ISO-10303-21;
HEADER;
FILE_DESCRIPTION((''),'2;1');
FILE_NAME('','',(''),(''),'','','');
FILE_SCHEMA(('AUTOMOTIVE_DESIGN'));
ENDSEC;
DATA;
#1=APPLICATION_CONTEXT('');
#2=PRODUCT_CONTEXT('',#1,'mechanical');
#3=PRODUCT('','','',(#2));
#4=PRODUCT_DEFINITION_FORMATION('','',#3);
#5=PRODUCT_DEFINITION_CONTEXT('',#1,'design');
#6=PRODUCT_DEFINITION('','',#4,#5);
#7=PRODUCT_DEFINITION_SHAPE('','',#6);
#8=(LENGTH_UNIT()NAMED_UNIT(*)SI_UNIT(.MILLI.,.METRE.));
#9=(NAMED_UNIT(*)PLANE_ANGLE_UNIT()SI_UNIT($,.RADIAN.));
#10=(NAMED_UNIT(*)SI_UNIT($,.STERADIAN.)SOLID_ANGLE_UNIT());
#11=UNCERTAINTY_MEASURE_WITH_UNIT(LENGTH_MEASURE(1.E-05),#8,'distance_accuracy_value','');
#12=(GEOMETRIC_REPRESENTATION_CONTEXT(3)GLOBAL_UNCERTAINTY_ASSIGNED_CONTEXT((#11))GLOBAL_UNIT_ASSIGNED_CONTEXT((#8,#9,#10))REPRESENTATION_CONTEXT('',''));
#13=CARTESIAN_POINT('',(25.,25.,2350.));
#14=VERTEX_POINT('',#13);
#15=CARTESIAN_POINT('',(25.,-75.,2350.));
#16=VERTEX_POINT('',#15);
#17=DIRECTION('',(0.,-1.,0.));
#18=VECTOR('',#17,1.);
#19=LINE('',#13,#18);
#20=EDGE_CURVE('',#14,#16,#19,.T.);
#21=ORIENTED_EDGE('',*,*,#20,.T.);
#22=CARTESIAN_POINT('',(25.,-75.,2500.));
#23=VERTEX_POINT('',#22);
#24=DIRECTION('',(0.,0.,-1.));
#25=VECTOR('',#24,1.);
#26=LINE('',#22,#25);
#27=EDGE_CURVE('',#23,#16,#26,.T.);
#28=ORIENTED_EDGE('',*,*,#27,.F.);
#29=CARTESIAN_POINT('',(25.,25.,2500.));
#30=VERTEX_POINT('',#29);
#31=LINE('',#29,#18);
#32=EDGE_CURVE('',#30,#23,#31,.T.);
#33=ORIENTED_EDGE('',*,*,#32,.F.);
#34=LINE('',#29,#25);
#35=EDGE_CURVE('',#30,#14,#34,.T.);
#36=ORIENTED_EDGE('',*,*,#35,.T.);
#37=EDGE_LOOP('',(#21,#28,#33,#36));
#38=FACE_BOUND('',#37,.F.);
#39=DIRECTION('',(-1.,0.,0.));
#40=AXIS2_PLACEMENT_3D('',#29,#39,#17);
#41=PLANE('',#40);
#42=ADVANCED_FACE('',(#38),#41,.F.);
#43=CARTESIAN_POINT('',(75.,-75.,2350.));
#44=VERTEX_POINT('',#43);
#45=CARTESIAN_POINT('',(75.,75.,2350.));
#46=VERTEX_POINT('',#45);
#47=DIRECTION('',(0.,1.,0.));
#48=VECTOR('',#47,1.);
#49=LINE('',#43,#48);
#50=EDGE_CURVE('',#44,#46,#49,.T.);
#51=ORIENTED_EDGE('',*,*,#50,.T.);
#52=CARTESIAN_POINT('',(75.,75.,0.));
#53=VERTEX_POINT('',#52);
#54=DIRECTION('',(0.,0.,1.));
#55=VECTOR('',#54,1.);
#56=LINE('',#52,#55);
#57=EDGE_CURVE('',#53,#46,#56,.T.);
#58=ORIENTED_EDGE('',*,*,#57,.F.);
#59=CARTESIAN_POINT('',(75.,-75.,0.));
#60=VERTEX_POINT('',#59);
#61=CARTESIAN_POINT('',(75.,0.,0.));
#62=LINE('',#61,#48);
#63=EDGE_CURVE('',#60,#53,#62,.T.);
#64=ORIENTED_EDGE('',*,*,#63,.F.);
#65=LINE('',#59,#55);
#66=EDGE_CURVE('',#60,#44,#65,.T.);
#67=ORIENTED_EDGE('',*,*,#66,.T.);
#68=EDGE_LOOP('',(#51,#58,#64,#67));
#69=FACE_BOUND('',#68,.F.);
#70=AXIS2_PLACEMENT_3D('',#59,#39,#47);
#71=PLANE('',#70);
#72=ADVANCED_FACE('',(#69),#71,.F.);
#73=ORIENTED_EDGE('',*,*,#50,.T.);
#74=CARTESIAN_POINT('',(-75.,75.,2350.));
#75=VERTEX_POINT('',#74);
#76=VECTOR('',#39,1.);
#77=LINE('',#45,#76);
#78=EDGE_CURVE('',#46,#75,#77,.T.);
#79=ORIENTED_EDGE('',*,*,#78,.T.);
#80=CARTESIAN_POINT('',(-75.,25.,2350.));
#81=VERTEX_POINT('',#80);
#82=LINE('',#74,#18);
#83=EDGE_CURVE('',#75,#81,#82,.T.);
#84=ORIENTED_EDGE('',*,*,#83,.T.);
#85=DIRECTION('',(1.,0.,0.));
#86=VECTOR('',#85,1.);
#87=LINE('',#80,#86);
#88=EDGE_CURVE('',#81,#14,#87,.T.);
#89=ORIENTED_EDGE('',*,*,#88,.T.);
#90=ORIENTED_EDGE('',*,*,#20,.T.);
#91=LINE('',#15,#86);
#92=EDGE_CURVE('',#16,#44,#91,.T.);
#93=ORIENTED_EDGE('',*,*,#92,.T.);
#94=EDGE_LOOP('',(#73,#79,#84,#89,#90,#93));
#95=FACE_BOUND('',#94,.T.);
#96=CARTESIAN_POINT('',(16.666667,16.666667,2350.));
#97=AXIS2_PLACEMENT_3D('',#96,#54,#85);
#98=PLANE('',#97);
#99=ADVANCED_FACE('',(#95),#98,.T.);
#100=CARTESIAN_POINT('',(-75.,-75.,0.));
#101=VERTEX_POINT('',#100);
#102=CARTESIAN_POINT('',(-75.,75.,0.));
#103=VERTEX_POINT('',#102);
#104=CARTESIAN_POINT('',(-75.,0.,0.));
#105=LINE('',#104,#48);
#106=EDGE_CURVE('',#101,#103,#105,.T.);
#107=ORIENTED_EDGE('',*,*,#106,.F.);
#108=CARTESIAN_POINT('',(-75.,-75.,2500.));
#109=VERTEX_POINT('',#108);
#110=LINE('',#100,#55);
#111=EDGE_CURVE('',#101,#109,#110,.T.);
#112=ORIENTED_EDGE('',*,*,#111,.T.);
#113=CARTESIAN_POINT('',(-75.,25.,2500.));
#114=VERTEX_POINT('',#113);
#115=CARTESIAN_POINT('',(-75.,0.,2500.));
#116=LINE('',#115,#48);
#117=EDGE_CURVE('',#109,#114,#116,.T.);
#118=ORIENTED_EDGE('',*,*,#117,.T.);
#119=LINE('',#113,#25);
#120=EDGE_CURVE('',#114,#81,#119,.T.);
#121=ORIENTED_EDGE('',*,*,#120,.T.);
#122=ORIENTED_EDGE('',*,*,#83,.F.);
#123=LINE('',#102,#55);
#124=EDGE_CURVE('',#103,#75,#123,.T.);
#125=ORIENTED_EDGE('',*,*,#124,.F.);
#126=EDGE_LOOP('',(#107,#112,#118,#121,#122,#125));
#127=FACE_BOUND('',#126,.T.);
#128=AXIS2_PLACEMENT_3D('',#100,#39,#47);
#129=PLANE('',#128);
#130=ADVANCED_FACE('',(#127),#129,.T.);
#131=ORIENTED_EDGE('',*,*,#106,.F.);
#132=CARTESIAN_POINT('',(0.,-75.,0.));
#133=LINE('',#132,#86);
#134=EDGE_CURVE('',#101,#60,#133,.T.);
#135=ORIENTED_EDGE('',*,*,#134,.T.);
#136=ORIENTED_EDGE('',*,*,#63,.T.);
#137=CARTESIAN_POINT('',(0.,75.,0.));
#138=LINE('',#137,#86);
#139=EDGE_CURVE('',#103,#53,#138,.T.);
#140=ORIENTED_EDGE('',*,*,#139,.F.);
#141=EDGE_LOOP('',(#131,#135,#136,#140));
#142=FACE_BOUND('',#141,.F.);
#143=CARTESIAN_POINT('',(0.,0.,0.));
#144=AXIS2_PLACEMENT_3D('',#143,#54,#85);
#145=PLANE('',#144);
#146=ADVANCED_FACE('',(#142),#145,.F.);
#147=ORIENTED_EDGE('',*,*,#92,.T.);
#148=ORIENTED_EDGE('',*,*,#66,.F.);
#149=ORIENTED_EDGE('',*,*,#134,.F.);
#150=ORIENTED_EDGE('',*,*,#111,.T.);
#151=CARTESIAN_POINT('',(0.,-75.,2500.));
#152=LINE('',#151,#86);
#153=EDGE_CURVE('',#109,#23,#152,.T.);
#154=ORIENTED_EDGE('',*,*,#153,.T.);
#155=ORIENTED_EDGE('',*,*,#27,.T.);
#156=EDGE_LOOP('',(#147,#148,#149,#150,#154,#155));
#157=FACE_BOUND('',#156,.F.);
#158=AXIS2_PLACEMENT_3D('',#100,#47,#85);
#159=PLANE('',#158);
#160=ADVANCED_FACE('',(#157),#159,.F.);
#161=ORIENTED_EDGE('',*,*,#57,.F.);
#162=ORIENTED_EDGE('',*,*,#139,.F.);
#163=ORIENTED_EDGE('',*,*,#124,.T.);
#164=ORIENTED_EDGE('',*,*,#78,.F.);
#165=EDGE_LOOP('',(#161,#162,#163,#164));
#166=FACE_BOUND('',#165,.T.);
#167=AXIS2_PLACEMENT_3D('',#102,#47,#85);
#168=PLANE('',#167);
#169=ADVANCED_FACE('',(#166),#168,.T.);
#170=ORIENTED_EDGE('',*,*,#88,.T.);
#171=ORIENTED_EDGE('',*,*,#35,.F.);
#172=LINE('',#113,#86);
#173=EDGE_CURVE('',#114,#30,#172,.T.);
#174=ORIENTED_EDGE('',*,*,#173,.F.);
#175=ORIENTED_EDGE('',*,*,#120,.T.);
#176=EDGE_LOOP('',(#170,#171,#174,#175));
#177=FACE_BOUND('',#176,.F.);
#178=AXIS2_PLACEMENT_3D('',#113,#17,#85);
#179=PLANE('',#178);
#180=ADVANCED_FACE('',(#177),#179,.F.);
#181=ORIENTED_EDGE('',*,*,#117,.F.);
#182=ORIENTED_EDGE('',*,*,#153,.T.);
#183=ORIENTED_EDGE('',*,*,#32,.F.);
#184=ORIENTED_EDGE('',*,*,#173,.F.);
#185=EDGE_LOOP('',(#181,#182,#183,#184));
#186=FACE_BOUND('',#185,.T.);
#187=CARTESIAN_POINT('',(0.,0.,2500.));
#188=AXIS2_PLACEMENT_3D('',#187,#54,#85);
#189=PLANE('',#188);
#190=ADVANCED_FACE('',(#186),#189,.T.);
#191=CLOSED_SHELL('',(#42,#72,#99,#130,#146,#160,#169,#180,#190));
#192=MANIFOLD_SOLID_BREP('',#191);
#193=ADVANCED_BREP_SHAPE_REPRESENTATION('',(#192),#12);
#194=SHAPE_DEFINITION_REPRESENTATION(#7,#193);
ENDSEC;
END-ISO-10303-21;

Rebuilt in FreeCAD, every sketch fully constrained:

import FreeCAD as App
import Part
import Sketcher


def add_polygon(sketch, points):
    """Adds a closed chain of lines whose ends are joined by coincident constraints."""
    first, n = sketch.GeometryCount, len(points)
    for a, b in zip(points, points[1:] + points[:1]):
        sketch.addGeometry(Part.LineSegment(App.Vector(*a, 0), App.Vector(*b, 0)), False)
    for i in range(n):
        sketch.addConstraint(Sketcher.Constraint("Coincident", first + i, 2, first + (i + 1) % n, 1))

doc = App.newDocument("Part")
body = doc.addObject("PartDesign::Body", "Body")

# Sketch on XY plane
sketch1 = body.newObject("Sketcher::SketchObject", "Sketch")
sketch1.AttachmentSupport = (doc.getObject("XY_Plane"), [""])
sketch1.MapMode = "FlatFace"
add_polygon(sketch1, [(-75, 75), (-75, -75), (75, -75), (75, 75)])  # lines 0-3
sketch1.addConstraint([
    Sketcher.Constraint("Vertical", 0),
    Sketcher.Constraint("Horizontal", 1),
    Sketcher.Constraint("Vertical", 2),
    Sketcher.Constraint("Horizontal", 3),
    Sketcher.Constraint("Symmetric", 0, 2, 2, 2, -1, 1),
    Sketcher.Constraint("Equal", 3, 0),
    Sketcher.Constraint("DistanceX", 1, 1, 1, 2, 150.0),
])
pad1 = body.newObject("PartDesign::Pad", "Pad")
pad1.Profile = sketch1
pad1.Length = 2500

# Sketch on XY plane
sketch2 = body.newObject("Sketcher::SketchObject", "Sketch001")
sketch2.AttachmentSupport = (doc.getObject("XY_Plane"), [""])
sketch2.MapMode = "FlatFace"
sketch2.AttachmentOffset = App.Placement(App.Vector(0, 0, 2500), App.Rotation())
add_polygon(sketch2, [(25, 25), (25, -75), (75, -75), (75, 75), (-75, 75), (-75, 25)])  # lines 0-5
sketch2.addConstraint([
    Sketcher.Constraint("Vertical", 0),
    Sketcher.Constraint("Horizontal", 1),
    Sketcher.Constraint("Vertical", 2),
    Sketcher.Constraint("Horizontal", 3),
    Sketcher.Constraint("Vertical", 4),
    Sketcher.Constraint("Horizontal", 5),
    Sketcher.Constraint("Symmetric", 1, 2, 3, 2, -1, 1),
    Sketcher.Constraint("Equal", 5, 0),
    Sketcher.Constraint("Equal", 3, 2),
    Sketcher.Constraint("DistanceX", 1, 1, 1, 2, 50.0),
    Sketcher.Constraint("DistanceX", 3, 2, 3, 1, 150.0),
])
pocket1 = body.newObject("PartDesign::Pocket", "Pocket")
pocket1.Profile = sketch2
pocket1.Length = 150

doc.recompute()
